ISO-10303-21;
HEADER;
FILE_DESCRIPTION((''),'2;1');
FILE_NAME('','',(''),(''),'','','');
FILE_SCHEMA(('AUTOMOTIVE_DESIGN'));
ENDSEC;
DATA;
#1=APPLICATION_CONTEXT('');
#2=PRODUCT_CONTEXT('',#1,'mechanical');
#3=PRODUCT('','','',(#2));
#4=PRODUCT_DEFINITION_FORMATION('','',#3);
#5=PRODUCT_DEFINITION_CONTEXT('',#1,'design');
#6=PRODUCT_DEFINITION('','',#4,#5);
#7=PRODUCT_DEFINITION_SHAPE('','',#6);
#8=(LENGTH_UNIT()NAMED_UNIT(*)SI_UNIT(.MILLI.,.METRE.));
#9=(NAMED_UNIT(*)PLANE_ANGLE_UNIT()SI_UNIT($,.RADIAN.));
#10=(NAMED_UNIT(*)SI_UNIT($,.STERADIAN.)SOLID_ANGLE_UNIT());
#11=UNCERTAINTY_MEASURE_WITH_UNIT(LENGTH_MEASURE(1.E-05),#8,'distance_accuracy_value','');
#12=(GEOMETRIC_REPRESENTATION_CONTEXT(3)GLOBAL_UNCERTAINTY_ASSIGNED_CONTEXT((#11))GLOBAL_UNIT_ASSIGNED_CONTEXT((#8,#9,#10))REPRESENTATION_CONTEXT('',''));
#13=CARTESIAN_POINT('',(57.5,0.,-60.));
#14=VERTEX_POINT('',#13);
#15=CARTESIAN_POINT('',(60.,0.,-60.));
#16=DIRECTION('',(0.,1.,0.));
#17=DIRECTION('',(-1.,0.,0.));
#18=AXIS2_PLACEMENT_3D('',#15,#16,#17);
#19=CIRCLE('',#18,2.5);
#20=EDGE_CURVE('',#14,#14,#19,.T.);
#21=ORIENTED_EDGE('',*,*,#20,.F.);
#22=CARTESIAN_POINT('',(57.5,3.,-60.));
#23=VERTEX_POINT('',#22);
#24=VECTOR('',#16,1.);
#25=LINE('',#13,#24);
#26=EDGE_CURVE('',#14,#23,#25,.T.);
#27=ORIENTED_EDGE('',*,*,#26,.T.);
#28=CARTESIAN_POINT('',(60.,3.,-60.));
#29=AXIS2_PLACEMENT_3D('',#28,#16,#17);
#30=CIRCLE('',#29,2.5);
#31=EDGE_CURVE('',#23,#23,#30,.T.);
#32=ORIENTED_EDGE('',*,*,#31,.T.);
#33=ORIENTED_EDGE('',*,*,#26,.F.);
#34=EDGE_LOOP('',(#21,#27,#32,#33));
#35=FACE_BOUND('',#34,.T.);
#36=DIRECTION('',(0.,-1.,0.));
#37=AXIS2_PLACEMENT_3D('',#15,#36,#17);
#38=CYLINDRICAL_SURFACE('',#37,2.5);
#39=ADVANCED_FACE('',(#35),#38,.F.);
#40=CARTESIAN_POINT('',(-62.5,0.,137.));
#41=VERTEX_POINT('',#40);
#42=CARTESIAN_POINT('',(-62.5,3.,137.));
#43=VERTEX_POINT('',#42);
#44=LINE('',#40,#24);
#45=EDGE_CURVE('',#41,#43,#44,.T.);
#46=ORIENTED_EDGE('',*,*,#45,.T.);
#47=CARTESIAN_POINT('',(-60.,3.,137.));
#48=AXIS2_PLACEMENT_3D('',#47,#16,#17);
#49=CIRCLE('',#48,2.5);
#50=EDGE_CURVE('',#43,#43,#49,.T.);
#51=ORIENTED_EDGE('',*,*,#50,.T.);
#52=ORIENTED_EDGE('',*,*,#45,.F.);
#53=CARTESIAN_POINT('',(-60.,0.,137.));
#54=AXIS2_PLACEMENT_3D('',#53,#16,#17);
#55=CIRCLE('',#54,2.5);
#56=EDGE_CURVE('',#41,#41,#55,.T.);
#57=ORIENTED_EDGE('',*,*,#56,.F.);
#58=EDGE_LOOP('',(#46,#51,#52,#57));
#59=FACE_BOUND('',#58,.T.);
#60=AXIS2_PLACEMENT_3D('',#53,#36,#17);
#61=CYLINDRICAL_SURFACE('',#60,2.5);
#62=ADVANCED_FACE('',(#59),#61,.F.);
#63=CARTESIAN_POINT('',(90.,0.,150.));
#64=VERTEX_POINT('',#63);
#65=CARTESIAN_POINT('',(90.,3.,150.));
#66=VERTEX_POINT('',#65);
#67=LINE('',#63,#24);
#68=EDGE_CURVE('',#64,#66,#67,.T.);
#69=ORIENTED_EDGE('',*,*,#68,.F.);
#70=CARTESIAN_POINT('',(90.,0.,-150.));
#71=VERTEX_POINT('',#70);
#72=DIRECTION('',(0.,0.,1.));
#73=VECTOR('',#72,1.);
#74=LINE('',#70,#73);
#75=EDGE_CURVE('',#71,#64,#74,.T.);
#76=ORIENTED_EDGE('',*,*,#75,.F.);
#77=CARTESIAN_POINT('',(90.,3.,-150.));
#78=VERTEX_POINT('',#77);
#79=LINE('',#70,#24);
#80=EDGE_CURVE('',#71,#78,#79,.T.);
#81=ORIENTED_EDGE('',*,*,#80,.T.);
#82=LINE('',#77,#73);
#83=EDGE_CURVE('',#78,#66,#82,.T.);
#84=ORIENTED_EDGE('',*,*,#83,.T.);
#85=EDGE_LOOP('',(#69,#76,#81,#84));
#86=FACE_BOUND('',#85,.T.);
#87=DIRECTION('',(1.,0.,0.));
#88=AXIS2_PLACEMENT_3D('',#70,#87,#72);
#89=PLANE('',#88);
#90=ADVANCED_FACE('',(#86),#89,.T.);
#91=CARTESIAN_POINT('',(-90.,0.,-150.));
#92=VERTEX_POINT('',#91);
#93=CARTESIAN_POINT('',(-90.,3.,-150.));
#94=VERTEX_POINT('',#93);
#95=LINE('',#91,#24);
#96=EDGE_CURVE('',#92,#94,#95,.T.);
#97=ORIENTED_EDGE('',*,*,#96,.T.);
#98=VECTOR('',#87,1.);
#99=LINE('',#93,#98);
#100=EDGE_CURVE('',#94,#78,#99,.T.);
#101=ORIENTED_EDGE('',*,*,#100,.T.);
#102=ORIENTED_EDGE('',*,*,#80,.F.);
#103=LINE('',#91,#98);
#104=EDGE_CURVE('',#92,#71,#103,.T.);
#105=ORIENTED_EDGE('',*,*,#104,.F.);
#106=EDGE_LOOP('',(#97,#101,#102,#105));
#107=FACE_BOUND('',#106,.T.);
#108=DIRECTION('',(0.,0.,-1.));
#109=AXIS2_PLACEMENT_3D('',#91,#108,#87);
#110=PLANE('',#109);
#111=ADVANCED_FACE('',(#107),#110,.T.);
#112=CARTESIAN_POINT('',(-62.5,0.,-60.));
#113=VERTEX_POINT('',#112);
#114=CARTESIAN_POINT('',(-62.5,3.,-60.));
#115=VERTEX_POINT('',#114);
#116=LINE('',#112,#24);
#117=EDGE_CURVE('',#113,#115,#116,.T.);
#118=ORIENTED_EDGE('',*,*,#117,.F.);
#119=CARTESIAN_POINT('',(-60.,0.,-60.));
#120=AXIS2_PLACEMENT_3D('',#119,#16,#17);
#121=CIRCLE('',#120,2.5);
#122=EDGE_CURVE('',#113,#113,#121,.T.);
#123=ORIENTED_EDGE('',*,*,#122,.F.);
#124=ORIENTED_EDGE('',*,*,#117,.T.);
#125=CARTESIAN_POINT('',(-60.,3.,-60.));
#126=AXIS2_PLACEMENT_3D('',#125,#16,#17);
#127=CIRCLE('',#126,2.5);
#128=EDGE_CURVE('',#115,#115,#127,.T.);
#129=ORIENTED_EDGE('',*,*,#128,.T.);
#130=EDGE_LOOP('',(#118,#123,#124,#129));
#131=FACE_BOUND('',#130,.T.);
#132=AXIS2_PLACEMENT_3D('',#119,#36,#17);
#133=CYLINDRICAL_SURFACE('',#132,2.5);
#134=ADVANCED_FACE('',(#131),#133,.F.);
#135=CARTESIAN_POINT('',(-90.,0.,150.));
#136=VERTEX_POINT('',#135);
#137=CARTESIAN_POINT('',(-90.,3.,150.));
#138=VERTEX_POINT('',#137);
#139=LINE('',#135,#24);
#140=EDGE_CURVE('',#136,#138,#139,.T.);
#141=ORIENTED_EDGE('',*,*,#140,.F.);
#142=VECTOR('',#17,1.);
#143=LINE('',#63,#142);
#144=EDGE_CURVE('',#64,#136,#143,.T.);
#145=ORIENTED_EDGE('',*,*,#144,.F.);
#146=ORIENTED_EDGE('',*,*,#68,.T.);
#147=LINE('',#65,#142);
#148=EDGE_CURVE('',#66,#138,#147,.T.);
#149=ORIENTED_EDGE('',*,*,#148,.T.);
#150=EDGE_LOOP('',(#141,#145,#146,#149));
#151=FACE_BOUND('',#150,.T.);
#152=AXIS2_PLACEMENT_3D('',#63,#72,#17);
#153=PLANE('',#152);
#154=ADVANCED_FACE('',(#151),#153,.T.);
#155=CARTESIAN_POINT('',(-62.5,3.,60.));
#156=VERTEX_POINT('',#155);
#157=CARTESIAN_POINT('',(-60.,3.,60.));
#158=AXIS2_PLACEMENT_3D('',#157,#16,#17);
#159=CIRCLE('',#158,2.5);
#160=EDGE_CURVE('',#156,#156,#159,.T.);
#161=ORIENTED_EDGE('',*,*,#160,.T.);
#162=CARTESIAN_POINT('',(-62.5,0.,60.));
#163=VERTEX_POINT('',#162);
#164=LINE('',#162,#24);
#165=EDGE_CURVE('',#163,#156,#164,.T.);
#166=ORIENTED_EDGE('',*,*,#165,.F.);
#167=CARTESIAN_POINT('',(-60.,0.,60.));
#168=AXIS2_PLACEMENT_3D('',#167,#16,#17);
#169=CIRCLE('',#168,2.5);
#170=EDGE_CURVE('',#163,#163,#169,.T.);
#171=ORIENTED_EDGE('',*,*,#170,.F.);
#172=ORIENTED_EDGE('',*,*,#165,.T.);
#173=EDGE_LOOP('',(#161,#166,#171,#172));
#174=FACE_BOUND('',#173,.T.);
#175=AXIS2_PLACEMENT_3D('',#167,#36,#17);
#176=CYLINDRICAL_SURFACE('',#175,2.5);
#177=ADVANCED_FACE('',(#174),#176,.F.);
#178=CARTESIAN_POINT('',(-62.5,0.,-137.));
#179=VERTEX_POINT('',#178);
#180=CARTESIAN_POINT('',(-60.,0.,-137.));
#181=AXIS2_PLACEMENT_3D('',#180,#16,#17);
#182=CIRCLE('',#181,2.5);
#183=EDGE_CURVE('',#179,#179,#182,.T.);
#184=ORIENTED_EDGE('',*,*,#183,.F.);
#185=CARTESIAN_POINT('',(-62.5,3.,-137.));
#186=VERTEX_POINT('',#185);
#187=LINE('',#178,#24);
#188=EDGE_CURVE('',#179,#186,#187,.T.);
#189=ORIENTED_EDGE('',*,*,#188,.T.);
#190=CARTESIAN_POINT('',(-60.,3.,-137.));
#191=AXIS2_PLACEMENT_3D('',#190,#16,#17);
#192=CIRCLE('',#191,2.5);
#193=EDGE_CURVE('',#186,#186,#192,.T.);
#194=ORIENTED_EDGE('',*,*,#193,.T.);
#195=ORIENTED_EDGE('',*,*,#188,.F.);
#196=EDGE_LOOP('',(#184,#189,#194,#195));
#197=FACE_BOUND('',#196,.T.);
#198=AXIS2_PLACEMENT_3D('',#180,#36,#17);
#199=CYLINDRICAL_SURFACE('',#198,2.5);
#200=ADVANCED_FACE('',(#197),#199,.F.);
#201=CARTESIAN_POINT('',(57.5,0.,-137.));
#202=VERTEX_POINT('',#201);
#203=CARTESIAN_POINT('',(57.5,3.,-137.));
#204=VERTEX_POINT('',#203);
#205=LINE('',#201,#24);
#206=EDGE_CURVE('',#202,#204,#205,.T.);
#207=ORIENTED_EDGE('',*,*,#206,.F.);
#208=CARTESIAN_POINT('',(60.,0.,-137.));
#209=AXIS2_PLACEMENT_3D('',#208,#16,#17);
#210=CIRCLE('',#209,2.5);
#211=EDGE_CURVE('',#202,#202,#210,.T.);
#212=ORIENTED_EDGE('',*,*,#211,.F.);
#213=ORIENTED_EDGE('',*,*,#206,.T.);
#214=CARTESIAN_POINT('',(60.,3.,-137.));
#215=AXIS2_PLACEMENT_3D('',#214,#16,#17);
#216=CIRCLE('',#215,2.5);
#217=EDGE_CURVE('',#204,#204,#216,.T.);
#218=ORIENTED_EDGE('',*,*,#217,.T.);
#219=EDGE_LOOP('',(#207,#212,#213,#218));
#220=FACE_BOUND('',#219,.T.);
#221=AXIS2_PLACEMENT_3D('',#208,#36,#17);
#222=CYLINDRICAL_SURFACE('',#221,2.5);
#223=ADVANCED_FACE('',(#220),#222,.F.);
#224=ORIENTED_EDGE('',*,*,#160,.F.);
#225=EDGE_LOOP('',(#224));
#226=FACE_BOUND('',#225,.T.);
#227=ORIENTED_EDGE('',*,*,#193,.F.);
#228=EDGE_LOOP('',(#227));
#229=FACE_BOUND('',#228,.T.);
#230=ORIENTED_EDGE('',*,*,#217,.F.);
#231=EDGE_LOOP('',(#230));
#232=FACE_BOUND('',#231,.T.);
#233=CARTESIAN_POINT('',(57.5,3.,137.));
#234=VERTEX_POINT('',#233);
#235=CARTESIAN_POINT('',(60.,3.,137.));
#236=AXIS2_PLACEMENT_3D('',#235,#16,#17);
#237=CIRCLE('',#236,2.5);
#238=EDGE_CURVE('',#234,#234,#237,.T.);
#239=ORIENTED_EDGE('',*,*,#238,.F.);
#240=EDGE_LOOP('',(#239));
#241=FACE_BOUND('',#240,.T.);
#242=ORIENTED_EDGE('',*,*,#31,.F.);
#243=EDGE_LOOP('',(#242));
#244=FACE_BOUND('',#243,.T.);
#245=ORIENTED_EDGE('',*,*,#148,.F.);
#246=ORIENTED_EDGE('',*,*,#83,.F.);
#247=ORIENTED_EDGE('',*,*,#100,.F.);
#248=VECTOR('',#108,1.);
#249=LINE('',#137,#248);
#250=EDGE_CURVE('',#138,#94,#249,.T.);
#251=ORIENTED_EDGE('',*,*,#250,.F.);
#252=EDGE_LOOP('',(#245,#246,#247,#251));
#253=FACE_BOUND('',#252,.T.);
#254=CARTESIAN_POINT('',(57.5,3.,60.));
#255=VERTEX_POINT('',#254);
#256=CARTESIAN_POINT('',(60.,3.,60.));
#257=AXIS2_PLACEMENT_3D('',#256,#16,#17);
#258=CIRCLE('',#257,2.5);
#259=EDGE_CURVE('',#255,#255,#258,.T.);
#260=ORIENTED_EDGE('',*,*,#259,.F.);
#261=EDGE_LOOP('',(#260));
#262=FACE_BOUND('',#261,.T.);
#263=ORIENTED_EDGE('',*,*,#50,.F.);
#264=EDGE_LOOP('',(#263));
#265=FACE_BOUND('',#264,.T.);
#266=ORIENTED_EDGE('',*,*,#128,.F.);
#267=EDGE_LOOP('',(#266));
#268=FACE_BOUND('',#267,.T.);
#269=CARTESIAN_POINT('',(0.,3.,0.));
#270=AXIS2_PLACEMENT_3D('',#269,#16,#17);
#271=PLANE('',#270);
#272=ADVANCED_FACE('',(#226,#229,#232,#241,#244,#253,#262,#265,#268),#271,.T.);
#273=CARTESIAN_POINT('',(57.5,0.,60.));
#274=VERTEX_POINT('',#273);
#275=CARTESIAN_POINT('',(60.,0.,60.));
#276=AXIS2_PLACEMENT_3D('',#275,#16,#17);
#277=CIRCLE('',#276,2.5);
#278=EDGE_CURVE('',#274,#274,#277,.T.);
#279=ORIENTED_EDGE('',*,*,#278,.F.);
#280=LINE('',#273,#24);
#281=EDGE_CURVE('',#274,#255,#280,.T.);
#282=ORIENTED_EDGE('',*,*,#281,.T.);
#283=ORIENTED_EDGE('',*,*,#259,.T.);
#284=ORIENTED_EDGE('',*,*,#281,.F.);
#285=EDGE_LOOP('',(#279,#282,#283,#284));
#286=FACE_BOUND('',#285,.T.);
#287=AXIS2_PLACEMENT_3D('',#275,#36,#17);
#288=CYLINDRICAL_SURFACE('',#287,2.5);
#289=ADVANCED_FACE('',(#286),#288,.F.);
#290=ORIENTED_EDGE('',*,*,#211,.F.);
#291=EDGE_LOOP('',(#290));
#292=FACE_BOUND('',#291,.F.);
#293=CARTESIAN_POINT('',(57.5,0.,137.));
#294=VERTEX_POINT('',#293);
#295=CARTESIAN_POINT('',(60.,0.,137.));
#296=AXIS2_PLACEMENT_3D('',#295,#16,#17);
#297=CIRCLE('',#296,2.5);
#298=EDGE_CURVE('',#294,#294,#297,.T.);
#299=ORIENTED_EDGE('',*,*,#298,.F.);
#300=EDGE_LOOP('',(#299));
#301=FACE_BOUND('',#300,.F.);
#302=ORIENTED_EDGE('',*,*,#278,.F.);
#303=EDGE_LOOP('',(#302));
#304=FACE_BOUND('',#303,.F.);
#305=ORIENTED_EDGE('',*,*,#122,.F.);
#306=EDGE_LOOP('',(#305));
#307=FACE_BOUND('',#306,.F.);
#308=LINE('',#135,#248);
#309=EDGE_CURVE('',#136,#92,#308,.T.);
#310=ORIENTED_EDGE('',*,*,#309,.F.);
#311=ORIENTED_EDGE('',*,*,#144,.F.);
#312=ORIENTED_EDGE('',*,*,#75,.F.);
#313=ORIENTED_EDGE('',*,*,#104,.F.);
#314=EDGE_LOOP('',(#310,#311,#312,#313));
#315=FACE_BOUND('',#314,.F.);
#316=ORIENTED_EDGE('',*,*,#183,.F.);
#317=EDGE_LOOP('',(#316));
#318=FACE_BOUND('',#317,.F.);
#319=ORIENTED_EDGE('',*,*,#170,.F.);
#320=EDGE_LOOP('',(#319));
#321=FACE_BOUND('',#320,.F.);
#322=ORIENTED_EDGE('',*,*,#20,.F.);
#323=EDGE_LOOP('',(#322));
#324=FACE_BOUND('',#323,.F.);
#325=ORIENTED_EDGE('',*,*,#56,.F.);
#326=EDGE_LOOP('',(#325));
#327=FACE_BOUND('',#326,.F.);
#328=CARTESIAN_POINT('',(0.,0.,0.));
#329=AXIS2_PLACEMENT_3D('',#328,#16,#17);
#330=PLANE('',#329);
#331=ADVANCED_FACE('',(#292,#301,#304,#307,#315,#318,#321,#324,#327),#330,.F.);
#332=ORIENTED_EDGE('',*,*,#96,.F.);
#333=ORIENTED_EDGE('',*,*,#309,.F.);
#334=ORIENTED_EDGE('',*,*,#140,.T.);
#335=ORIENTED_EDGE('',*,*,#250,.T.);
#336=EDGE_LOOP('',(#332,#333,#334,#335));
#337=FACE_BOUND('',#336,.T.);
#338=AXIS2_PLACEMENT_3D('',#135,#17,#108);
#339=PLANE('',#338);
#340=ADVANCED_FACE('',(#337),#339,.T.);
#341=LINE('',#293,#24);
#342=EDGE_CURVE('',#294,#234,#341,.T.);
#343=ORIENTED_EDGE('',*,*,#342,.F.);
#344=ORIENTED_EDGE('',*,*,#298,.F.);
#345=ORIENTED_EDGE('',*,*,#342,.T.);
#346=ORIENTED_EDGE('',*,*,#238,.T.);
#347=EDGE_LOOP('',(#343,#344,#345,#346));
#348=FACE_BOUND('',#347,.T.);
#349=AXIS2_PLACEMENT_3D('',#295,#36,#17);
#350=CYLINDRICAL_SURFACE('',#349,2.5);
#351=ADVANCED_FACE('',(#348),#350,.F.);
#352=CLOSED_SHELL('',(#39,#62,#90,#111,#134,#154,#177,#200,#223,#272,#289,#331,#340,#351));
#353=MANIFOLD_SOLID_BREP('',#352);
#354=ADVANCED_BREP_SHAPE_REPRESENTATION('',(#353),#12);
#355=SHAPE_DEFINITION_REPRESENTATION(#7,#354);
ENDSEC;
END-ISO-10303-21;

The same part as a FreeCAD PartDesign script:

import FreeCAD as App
import Part
import Sketcher

V = App.Vector
Q = App.Units.Quantity


def add_polygon(sketch, points):
    """Adds a closed chain of lines whose ends are joined by coincident constraints."""
    first, n = sketch.GeometryCount, len(points)
    for a, b in zip(points, points[1:] + points[:1]):
        sketch.addGeometry(Part.LineSegment(App.Vector(*a, 0), App.Vector(*b, 0)), False)
    for i in range(n):
        sketch.addConstraint(Sketcher.Constraint("Coincident", first + i, 2, first + (i + 1) % n, 1))

doc = App.newDocument("Part")
body = doc.addObject("PartDesign::Body", "Body")

# Sketch on XZ plane
sketch1 = body.newObject("Sketcher::SketchObject", "Sketch")
sketch1.AttachmentSupport = (doc.getObject("XZ_Plane"), [""])
sketch1.MapMode = "FlatFace"
add_polygon(sketch1, [(-90, 150), (90, 150), (90, -150), (-90, -150)])  # lines 0-3
sketch1.addGeometry(Part.Circle(V(60, -137, 0), V(0, 0, 1), 2.5), False)  # 4
sketch1.addGeometry(Part.Circle(V(60, -60, 0), V(0, 0, 1), 2.5), False)  # 5
sketch1.addGeometry(Part.Circle(V(-60, -137, 0), V(0, 0, 1), 2.5), False)  # 6
sketch1.addGeometry(Part.Circle(V(-60, -60, 0), V(0, 0, 1), 2.5), False)  # 7
sketch1.addGeometry(Part.Circle(V(60, 60, 0), V(0, 0, 1), 2.5), False)  # 8
sketch1.addGeometry(Part.Circle(V(60, 137, 0), V(0, 0, 1), 2.5), False)  # 9
sketch1.addGeometry(Part.Circle(V(-60, 60, 0), V(0, 0, 1), 2.5), False)  # 10
sketch1.addGeometry(Part.Circle(V(-60, 137, 0), V(0, 0, 1), 2.5), False)  # 11
sketch1.addConstraint([
    Sketcher.Constraint("Horizontal", 0),
    Sketcher.Constraint("Vertical", 1),
    Sketcher.Constraint("Horizontal", 2),
    Sketcher.Constraint("Vertical", 3),
    Sketcher.Constraint("Equal", 4, 5),
    Sketcher.Constraint("Equal", 5, 6),
    Sketcher.Constraint("Equal", 6, 7),
    Sketcher.Constraint("Equal", 7, 8),
    Sketcher.Constraint("Equal", 8, 9),
    Sketcher.Constraint("Equal", 9, 10),
    Sketcher.Constraint("Equal", 10, 11),
    Sketcher.Constraint("Symmetric", 7, 3, 8, 3, -1, 1),
    Sketcher.Constraint("Symmetric", 6, 3, 9, 3, -1, 1),
    Sketcher.Constraint("Symmetric", 5, 3, 10, 3, -1, 1),
    Sketcher.Constraint("Symmetric", 4, 3, 11, 3, -1, 1),
    Sketcher.Constraint("Symmetric", 0, 2, 2, 2, -1, 1),
    Sketcher.Constraint("Symmetric", 4, 3, 6, 3, -2),
    Sketcher.Constraint("Symmetric", 5, 3, 7, 3, -2),
    Sketcher.Constraint("Vertical", 4, 3, 5, 3),
    Sketcher.Constraint("Diameter", 4, Q("5 mm")),
    Sketcher.Constraint("DistanceX", 0, 1, 0, 2, Q("180 mm")),
    Sketcher.Constraint("DistanceY", 1, 2, 1, 1, Q("300 mm")),
    Sketcher.Constraint("DistanceX", 6, 3, 4, 3, Q("120 mm")),
    Sketcher.Constraint("DistanceY", 5, 3, 8, 3, Q("120 mm")),
    Sketcher.Constraint("DistanceY", 4, 3, 9, 3, Q("274 mm")),
])
pad1 = body.newObject("PartDesign::Pad", "Pad")
pad1.Profile = sketch1
pad1.Length = 3
pad1.Reversed = True

doc.recompute()
